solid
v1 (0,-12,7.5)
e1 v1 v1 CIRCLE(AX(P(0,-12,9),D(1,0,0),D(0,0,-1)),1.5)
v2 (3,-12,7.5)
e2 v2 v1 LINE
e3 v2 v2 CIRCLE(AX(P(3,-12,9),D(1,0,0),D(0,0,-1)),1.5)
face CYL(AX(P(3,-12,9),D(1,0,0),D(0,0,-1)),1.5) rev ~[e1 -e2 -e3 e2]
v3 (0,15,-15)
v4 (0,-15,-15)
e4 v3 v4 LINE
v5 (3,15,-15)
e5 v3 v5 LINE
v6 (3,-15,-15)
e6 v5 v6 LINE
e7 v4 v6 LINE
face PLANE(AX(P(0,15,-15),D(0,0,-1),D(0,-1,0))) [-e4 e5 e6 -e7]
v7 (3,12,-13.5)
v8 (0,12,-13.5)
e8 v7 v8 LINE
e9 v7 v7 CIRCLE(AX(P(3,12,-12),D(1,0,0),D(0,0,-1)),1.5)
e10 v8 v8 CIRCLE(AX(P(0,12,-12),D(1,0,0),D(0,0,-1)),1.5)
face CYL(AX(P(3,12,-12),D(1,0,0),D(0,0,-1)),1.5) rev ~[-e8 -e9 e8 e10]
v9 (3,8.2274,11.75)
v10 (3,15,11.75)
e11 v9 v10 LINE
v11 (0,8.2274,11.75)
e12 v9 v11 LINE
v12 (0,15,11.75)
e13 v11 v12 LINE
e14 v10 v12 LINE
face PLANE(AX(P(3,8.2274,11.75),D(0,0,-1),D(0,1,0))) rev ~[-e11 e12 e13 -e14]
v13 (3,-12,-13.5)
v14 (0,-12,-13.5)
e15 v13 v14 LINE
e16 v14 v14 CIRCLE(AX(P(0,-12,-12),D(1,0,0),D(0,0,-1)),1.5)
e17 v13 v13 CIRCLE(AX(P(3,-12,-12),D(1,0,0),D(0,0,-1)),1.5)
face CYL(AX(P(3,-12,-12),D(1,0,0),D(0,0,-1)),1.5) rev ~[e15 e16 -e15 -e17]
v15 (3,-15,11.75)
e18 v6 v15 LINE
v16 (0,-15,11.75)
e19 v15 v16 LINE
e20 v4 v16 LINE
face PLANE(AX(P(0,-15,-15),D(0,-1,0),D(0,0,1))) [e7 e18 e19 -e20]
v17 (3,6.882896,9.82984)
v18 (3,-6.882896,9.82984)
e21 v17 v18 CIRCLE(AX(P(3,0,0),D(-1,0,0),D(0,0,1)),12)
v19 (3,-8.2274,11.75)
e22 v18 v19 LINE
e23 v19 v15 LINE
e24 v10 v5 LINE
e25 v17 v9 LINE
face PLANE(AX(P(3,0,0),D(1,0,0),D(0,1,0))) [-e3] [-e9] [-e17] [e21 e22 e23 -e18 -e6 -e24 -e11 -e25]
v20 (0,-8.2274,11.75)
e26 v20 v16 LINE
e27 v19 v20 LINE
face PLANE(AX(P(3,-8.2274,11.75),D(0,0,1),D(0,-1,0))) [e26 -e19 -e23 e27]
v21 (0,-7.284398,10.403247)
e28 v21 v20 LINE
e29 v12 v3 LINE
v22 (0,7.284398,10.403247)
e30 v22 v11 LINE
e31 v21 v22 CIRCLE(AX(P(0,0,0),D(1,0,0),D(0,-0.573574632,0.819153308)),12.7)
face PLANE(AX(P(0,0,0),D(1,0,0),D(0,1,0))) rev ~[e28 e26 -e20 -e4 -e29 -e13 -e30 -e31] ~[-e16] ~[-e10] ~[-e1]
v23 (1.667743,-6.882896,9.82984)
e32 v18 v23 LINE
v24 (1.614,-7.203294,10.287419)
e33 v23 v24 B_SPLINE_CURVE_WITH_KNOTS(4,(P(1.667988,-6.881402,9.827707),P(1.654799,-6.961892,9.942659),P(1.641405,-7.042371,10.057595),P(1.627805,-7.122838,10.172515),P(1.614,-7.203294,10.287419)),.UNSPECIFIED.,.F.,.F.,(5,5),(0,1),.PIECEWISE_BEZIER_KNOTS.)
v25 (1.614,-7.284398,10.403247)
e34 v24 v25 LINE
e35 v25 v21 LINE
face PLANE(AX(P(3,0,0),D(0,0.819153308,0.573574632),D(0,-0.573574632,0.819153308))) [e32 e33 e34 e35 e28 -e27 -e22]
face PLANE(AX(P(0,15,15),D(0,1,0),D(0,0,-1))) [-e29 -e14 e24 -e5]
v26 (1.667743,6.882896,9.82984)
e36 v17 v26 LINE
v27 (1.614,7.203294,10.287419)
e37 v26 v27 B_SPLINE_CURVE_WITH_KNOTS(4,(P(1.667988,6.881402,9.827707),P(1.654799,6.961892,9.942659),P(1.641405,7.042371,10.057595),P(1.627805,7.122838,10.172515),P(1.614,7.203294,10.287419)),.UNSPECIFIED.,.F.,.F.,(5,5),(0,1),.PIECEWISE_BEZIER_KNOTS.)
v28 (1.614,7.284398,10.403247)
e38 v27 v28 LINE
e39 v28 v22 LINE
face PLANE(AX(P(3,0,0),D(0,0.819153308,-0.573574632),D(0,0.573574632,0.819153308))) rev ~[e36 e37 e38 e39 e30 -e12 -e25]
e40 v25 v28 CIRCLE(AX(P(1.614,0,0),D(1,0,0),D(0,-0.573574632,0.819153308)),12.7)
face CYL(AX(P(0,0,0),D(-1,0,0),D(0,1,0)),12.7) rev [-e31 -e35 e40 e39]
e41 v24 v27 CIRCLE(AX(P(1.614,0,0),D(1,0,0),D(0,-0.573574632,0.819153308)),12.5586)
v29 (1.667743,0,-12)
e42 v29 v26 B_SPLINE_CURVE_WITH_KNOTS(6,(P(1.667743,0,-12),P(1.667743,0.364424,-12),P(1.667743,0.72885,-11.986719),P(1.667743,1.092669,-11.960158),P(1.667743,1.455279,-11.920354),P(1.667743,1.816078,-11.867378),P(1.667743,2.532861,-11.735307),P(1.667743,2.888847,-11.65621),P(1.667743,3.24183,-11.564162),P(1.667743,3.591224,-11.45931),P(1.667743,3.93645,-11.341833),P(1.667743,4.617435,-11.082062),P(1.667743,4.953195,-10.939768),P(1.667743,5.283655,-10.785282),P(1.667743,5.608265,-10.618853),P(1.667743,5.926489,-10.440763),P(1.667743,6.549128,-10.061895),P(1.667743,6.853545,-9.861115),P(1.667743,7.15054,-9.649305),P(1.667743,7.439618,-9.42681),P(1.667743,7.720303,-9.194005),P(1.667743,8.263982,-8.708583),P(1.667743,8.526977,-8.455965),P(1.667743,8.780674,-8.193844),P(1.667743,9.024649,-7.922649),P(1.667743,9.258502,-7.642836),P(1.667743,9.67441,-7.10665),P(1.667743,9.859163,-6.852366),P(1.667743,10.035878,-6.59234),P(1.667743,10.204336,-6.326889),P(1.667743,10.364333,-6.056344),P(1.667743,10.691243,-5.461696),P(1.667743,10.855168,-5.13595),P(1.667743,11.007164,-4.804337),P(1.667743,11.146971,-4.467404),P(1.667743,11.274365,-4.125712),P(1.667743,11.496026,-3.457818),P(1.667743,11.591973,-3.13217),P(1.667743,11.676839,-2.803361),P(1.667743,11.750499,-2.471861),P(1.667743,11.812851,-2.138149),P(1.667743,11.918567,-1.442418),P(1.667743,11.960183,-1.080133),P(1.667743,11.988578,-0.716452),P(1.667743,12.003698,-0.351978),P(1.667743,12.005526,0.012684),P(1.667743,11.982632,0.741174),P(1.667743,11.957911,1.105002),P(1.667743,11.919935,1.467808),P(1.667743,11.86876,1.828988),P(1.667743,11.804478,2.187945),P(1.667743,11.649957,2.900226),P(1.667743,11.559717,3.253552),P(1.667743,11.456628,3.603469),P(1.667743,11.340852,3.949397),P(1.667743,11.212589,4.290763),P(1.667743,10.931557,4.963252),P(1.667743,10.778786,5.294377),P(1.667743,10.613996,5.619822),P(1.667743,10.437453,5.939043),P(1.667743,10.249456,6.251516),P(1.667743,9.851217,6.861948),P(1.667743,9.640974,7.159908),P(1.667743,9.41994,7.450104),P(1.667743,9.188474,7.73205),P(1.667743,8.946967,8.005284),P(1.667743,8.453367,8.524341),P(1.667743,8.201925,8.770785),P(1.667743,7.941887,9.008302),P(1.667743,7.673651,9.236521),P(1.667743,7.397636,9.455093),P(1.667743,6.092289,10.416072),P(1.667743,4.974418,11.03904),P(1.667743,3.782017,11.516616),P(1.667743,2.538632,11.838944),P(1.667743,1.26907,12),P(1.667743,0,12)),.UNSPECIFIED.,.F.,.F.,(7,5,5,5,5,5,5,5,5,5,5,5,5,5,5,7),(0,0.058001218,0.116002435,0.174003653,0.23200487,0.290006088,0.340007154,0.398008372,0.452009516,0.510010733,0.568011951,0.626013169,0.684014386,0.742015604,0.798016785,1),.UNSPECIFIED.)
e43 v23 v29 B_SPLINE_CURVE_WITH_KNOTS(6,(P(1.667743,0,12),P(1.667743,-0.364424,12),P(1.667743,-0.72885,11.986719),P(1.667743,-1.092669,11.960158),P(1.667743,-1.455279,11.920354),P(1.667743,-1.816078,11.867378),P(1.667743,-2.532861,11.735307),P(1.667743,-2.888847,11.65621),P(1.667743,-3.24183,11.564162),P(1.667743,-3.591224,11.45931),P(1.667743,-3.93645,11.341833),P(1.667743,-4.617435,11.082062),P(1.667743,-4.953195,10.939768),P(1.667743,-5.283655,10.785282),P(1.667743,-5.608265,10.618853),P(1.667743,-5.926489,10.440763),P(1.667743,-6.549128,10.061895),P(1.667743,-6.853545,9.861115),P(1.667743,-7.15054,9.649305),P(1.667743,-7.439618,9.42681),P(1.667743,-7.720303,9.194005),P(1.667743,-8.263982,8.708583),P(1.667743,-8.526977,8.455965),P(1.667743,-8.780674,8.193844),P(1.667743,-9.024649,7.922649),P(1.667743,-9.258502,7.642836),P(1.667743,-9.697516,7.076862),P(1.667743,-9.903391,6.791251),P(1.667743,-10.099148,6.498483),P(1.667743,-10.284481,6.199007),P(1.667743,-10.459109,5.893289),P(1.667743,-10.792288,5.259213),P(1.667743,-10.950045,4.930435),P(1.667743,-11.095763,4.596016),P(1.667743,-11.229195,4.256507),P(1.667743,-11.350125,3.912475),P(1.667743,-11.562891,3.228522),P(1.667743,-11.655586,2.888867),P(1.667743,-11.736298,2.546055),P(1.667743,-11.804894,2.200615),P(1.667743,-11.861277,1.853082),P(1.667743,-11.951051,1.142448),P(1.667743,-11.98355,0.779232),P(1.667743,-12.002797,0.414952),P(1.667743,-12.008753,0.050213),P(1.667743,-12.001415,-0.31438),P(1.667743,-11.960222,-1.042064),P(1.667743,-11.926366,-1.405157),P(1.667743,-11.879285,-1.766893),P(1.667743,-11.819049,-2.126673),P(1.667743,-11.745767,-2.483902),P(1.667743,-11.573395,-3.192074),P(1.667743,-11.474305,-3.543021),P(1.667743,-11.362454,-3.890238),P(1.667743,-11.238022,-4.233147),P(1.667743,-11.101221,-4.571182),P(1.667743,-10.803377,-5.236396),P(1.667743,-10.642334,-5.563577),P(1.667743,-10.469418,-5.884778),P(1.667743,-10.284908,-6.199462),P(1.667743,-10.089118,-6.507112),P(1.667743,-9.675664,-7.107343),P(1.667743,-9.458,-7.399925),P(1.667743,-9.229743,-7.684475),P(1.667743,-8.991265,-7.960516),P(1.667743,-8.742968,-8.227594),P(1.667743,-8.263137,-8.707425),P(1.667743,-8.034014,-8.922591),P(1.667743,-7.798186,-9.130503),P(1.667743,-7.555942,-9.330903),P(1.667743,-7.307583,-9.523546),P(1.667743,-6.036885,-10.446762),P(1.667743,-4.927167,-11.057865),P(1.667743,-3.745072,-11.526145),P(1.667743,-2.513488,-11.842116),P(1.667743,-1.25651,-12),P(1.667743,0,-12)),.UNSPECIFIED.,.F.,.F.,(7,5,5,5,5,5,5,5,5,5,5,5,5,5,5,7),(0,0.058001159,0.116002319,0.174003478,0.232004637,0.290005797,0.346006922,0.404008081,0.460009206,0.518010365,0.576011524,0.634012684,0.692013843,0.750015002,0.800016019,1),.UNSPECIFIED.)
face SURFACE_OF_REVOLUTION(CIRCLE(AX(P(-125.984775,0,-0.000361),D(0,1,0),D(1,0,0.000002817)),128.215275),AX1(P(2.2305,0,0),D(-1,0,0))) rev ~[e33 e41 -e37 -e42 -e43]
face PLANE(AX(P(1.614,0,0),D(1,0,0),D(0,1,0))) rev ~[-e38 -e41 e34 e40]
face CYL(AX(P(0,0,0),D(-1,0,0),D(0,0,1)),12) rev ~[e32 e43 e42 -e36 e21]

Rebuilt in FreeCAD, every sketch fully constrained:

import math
import FreeCAD as App
import Part
import Sketcher

V = App.Vector
Q = App.Units.Quantity


def add_polygon(sketch, points):
    """Adds a closed chain of lines whose ends are joined by coincident constraints."""
    first, n = sketch.GeometryCount, len(points)
    for a, b in zip(points, points[1:] + points[:1]):
        sketch.addGeometry(Part.LineSegment(App.Vector(*a, 0), App.Vector(*b, 0)), False)
    for i in range(n):
        sketch.addConstraint(Sketcher.Constraint("Coincident", first + i, 2, first + (i + 1) % n, 1))

doc = App.newDocument("Part")
body = doc.addObject("PartDesign::Body", "Body")

sketch1 = doc.addObject("Sketcher::SketchObject", "Sketch")
body.addObject(sketch1)
sketch1.AttachmentSupport = (doc.YZ_Plane, [""])
sketch1.MapMode = "FlatFace"
add_polygon(sketch1, [(15, 15), (-15, 15), (-15, -15), (15, -15)])
sketch1.addConstraint([
    Sketcher.Constraint("Horizontal", 0),
    Sketcher.Constraint("Vertical", 1),
    Sketcher.Constraint("Horizontal", 2),
    Sketcher.Constraint("Vertical", 3),
    Sketcher.Constraint("Symmetric", 0, 2, 2, 2, -1, 1),
    Sketcher.Constraint("Equal", 2, 1),
    Sketcher.Constraint("DistanceX", 0, 2, 0, 1, Q("30 mm")),
])
pad1 = doc.addObject("PartDesign::Pad", "Pad")
body.addObject(pad1)
pad1.Profile = sketch1
pad1.Length = 3

sketch2 = doc.addObject("Sketcher::SketchObject", "Sketch001")
body.addObject(sketch2)
sketch2.AttachmentSupport = (doc.YZ_Plane, [""])
sketch2.MapMode = "FlatFace"
sketch2.addGeometry(Part.Circle(V(0, 0, 0), V(0, 0, 1), 13), False)
sketch2.addConstraint([
    Sketcher.Constraint("Coincident", 0, 3, -1, 1),
    Sketcher.Constraint("Diameter", 0, Q("25.4 mm")),
])
pocket1 = doc.addObject("PartDesign::Pocket", "Pocket")
body.addObject(pocket1)
pocket1.Profile = sketch2
pocket1.Length = 1.614
pocket1.Reversed = True

sketch3 = doc.addObject("Sketcher::SketchObject", "Sketch002")
body.addObject(sketch3)
sketch3.AttachmentSupport = (doc.YZ_Plane, [""])
sketch3.MapMode = "FlatFace"
sketch3.addGeometry(Part.Circle(V(0, 0, 0), V(0, 0, 1), 12), False)
sketch3.addConstraint([
    Sketcher.Constraint("Coincident", 0, 3, -1, 1),
    Sketcher.Constraint("Diameter", 0, Q("24 mm")),
])
pocket2 = doc.addObject("PartDesign::Pocket", "Pocket001")
body.addObject(pocket2)
pocket2.Profile = sketch3
pocket2.Length = 3
pocket2.Reversed = True

sketch4 = doc.addObject("Sketcher::SketchObject", "Sketch003")
body.addObject(sketch4)
sketch4.AttachmentSupport = (doc.XZ_Plane, [""])
sketch4.MapMode = "FlatFace"
sketch4.addGeometry([
    Part.LineSegment(V(1.6, -12.6, 0), V(1.6, 0, 0)),
    Part.LineSegment(V(1.6, 0, 0), V(2.2, 0, 0)),
    Part.ArcOfCircle(Part.Circle(V(-126, 0, 0), V(0, 0, 1), 128.2), math.radians(-5.62), math.radians(0)),
], False)
sketch4.addConstraint([
    Sketcher.Constraint("Coincident", 0, 2, 1, 1),
    Sketcher.Constraint("Coincident", 1, 2, 2, 2),
    Sketcher.Constraint("Coincident", 2, 1, 0, 1),
    Sketcher.Constraint("Vertical", 0),
    Sketcher.Constraint("Horizontal", 1),
    Sketcher.Constraint("PointOnObject", 0, 2, -1),
    Sketcher.Constraint("DistanceY", 0, 1, 0, 2, Q("12.5586 mm")),
    Sketcher.Constraint("Radius", 2, Q("128.2153 mm")),
    Sketcher.Constraint("DistanceY", 2, 1, 2, 3, Q("12.5582 mm")),
    Sketcher.Constraint("DistanceX", -1, 1, 0, 2, Q("1.614 mm")),
])
groove = doc.addObject("PartDesign::Groove", "Groove")
body.addObject(groove)
groove.Profile = sketch4
groove.ReferenceAxis = (sketch4, ["H_Axis"])
groove.Angle = 360

sketch5 = doc.addObject("Sketcher::SketchObject", "Sketch004")
body.addObject(sketch5)
sketch5.AttachmentSupport = (doc.YZ_Plane, [""])
sketch5.MapMode = "FlatFace"
sketch5.AttachmentOffset = App.Placement(V(0, 0, 3), App.Rotation())
sketch5.addGeometry([
    Part.Circle(V(12, -12, 0), V(0, 0, 1), 1.5),
    Part.Circle(V(-12, -12, 0), V(0, 0, 1), 1.5),
    Part.Circle(V(-12, 9, 0), V(0, 0, 1), 1.5),
], False)
sketch5.addConstraint([
    Sketcher.Constraint("Equal", 0, 1),
    Sketcher.Constraint("Equal", 1, 2),
    Sketcher.Constraint("Symmetric", 0, 3, 1, 3, -2),
    Sketcher.Constraint("Vertical", 1, 3, 2, 3),
    Sketcher.Constraint("Diameter", 0, Q("3 mm")),
    Sketcher.Constraint("DistanceX", -1, 1, 0, 3, Q("12 mm")),
    Sketcher.Constraint("DistanceY", 0, 3, -1, 1, Q("12 mm")),
    Sketcher.Constraint("DistanceY", -1, 1, 2, 3, Q("9 mm")),
])
pocket3 = doc.addObject("PartDesign::Pocket", "Pocket002")
body.addObject(pocket3)
pocket3.Profile = sketch5
pocket3.Length = 3

sketch6 = doc.addObject("Sketcher::SketchObject", "Sketch005")
body.addObject(sketch6)
sketch6.AttachmentSupport = (doc.YZ_Plane, [""])
sketch6.MapMode = "FlatFace"
sketch6.AttachmentOffset = App.Placement(V(0, 0, 3), App.Rotation())
add_polygon(sketch6, [(15, 11.8), (15, 15), (-15, 15), (-15, 11.8), (-8.2, 11.8), (0, 0), (8.2, 11.8)])
sketch6.addConstraint([
    Sketcher.Constraint("Vertical", 0),
    Sketcher.Constraint("Horizontal", 1),
    Sketcher.Constraint("Vertical", 2),
    Sketcher.Constraint("Horizontal", 3),
    Sketcher.Constraint("Horizontal", 6),
    Sketcher.Constraint("Coincident", 4, 2, -1, 1),
    Sketcher.Constraint("Symmetric", 3, 2, 5, 2, -2),
    Sketcher.Constraint("Equal", 3, 6),
    Sketcher.Constraint("DistanceY", 0, 1, 0, 2, Q("3.25 mm")),
    Sketcher.Constraint("DistanceX", 1, 2, 1, 1, Q("30 mm")),
    Sketcher.Constraint("Angle", 4, Q("-55.0001 deg")),
    Sketcher.Constraint("DistanceY", -1, 1, 0, 2, Q("15 mm")),
])
pocket4 = doc.addObject("PartDesign::Pocket", "Pocket003")
body.addObject(pocket4)
pocket4.Profile = sketch6
pocket4.Length = 3

doc.recompute()
